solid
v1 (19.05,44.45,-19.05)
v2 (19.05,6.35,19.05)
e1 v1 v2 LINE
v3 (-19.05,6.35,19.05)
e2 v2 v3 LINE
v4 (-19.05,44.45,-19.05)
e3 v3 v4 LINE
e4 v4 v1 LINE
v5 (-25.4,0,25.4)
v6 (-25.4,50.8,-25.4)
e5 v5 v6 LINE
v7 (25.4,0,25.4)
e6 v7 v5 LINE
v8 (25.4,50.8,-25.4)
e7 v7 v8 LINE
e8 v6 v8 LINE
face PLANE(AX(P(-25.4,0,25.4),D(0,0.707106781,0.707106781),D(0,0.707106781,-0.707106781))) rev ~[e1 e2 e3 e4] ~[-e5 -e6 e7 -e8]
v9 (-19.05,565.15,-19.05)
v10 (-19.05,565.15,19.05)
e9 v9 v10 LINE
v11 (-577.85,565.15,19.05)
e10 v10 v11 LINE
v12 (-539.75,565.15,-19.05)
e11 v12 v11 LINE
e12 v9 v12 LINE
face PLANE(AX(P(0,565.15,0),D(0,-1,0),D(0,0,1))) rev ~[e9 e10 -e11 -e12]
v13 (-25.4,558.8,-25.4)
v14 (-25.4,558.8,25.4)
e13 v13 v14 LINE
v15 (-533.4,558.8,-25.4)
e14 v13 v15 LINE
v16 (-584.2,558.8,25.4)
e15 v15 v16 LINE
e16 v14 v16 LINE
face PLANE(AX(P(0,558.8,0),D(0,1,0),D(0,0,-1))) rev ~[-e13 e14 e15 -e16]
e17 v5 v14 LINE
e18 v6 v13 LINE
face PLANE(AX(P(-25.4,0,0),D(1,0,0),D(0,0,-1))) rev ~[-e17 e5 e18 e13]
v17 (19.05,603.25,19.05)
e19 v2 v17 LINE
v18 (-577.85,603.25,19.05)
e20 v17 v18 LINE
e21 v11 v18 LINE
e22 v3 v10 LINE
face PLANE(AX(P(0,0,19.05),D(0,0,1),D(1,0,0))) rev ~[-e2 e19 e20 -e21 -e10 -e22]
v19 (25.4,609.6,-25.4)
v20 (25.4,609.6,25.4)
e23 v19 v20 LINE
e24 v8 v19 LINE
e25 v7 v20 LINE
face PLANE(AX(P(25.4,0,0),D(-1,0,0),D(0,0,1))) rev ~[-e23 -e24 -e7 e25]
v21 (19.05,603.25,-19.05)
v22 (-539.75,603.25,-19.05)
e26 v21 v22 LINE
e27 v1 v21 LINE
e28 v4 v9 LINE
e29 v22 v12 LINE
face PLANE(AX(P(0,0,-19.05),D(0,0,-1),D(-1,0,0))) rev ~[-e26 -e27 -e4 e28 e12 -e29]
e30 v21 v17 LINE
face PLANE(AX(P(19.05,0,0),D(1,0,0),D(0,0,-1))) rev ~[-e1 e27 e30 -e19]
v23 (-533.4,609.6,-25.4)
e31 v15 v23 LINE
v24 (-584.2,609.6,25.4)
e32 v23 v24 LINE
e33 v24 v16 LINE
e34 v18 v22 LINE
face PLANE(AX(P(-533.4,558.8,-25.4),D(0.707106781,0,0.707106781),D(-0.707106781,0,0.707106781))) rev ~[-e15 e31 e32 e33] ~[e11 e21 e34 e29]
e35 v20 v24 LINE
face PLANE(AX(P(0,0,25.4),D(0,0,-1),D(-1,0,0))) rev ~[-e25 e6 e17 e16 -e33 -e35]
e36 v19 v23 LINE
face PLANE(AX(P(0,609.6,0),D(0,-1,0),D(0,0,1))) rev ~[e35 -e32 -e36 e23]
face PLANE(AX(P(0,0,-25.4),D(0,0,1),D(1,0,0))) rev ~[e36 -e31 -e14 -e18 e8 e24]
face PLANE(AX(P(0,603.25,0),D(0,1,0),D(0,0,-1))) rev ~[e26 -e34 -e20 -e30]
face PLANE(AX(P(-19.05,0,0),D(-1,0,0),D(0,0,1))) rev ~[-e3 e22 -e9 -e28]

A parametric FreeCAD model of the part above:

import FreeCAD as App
import Part
import Sketcher
Q = App.Units.Quantity


def add_polygon(sketch, points):
    """Adds a closed chain of lines whose ends are joined by coincident constraints."""
    first, n = sketch.GeometryCount, len(points)
    for a, b in zip(points, points[1:] + points[:1]):
        sketch.addGeometry(Part.LineSegment(App.Vector(*a, 0), App.Vector(*b, 0)), False)
    for i in range(n):
        sketch.addConstraint(Sketcher.Constraint("Coincident", first + i, 2, first + (i + 1) % n, 1))

doc = App.newDocument("Part")
body = doc.addObject("PartDesign::Body", "Body")

# Sketch on XZ plane
sketch1 = doc.addObject("Sketcher::SketchObject", "Sketch")
body.addObject(sketch1)
sketch1.AttachmentSupport = (doc.XZ_Plane, [""])
sketch1.MapMode = "FlatFace"
add_polygon(sketch1, [(-25, 25), (-25, -25), (25, -25), (25, 25)])  # lines 0-3
add_polygon(sketch1, [(19, -19), (-19, -19), (-19, 19), (19, 19)])  # lines 4-7
sketch1.addConstraint([
    Sketcher.Constraint("Vertical", 0),
    Sketcher.Constraint("Horizontal", 1),
    Sketcher.Constraint("Vertical", 2),
    Sketcher.Constraint("Horizontal", 3),
    Sketcher.Constraint("Horizontal", 4),
    Sketcher.Constraint("Vertical", 5),
    Sketcher.Constraint("Horizontal", 6),
    Sketcher.Constraint("Vertical", 7),
    Sketcher.Constraint("Symmetric", 0, 2, 2, 2, -1, 1),
    Sketcher.Constraint("Symmetric", 4, 2, 6, 2, -1, 1),
    Sketcher.Constraint("Equal", 3, 0),
    Sketcher.Constraint("Equal", 6, 5),
    Sketcher.Constraint("DistanceX", 1, 1, 1, 2, Q("2 in")),
    Sketcher.Constraint("DistanceX", 4, 2, 4, 1, Q("1.5 in")),
])

# Sketch on XY plane
sketch2 = doc.addObject("Sketcher::SketchObject", "Sketch001")
body.addObject(sketch2)
sketch2.AttachmentSupport = (doc.XY_Plane, [""])
sketch2.MapMode = "FlatFace"
sketch2.addGeometry([
    Part.LineSegment(App.Vector(0, 0, 0), App.Vector(0, 584, 0)),
    Part.LineSegment(App.Vector(0, 584, 0), App.Vector(-584, 584, 0)),
], False)
sketch2.addConstraint([
    Sketcher.Constraint("Coincident", 0, 2, 1, 1),
    Sketcher.Constraint("Vertical", 0),
    Sketcher.Constraint("Horizontal", 1),
    Sketcher.Constraint("Coincident", 0, 1, -1, 1),
    Sketcher.Constraint("Equal", 1, 0),
    Sketcher.Constraint("DistanceX", 1, 2, 1, 1, Q("23 in")),
])
doc.recompute()

additivepipe = doc.addObject("PartDesign::AdditivePipe", "AdditivePipe")
body.addObject(additivepipe)
additivepipe.Profile = sketch1
additivepipe.Spine = (sketch2, ["Edge1", "Edge2"])
additivepipe.Transition = "Right corner"

# Sketch on YZ plane
sketch3 = doc.addObject("Sketcher::SketchObject", "Sketch002")
body.addObject(sketch3)
sketch3.AttachmentSupport = (doc.YZ_Plane, [""])
sketch3.MapMode = "FlatFace"
sketch3.AttachmentOffset = App.Placement(App.Vector(0, 0, -1 * 25.4), App.Rotation())
add_polygon(sketch3, [(0, -25), (0, 25), (51, -25)])  # lines 0-2
sketch3.addConstraint([
    Sketcher.Constraint("Vertical", 0),
    Sketcher.Constraint("Horizontal", 2),
    Sketcher.Constraint("Symmetric", 0, 2, 2, 2, -1, 1),
    Sketcher.Constraint("Equal", 2, 0),
    Sketcher.Constraint("DistanceX", 2, 2, 2, 1, Q("2 in")),
])
pocket1 = doc.addObject("PartDesign::Pocket", "Pocket")
body.addObject(pocket1)
pocket1.Profile = sketch3
pocket1.Type = "ThroughAll"
pocket1.Reversed = True

# Sketch on XZ plane
sketch4 = doc.addObject("Sketcher::SketchObject", "Sketch003")
body.addObject(sketch4)
sketch4.AttachmentSupport = (doc.XZ_Plane, [""])
sketch4.MapMode = "FlatFace"
sketch4.AttachmentOffset = App.Placement(App.Vector(0, 0, -22 * 25.4), App.Rotation())
add_polygon(sketch4, [(-584, 25), (-584, -25), (-533, -25)])  # lines 0-2
sketch4.addConstraint([
    Sketcher.Constraint("Vertical", 0),
    Sketcher.Constraint("Horizontal", 1),
    Sketcher.Constraint("Equal", 1, 0),
    Sketcher.Constraint("DistanceX", 1, 1, 1, 2, Q("2 in")),
    Sketcher.Constraint("DistanceX", 0, 2, -1, 1, Q("23 in")),
    Sketcher.Constraint("DistanceY", 0, 2, -1, 1, Q("1 in")),
])
pocket2 = doc.addObject("PartDesign::Pocket", "Pocket001")
body.addObject(pocket2)
pocket2.Profile = sketch4
pocket2.Type = "ThroughAll"

doc.recompute()
